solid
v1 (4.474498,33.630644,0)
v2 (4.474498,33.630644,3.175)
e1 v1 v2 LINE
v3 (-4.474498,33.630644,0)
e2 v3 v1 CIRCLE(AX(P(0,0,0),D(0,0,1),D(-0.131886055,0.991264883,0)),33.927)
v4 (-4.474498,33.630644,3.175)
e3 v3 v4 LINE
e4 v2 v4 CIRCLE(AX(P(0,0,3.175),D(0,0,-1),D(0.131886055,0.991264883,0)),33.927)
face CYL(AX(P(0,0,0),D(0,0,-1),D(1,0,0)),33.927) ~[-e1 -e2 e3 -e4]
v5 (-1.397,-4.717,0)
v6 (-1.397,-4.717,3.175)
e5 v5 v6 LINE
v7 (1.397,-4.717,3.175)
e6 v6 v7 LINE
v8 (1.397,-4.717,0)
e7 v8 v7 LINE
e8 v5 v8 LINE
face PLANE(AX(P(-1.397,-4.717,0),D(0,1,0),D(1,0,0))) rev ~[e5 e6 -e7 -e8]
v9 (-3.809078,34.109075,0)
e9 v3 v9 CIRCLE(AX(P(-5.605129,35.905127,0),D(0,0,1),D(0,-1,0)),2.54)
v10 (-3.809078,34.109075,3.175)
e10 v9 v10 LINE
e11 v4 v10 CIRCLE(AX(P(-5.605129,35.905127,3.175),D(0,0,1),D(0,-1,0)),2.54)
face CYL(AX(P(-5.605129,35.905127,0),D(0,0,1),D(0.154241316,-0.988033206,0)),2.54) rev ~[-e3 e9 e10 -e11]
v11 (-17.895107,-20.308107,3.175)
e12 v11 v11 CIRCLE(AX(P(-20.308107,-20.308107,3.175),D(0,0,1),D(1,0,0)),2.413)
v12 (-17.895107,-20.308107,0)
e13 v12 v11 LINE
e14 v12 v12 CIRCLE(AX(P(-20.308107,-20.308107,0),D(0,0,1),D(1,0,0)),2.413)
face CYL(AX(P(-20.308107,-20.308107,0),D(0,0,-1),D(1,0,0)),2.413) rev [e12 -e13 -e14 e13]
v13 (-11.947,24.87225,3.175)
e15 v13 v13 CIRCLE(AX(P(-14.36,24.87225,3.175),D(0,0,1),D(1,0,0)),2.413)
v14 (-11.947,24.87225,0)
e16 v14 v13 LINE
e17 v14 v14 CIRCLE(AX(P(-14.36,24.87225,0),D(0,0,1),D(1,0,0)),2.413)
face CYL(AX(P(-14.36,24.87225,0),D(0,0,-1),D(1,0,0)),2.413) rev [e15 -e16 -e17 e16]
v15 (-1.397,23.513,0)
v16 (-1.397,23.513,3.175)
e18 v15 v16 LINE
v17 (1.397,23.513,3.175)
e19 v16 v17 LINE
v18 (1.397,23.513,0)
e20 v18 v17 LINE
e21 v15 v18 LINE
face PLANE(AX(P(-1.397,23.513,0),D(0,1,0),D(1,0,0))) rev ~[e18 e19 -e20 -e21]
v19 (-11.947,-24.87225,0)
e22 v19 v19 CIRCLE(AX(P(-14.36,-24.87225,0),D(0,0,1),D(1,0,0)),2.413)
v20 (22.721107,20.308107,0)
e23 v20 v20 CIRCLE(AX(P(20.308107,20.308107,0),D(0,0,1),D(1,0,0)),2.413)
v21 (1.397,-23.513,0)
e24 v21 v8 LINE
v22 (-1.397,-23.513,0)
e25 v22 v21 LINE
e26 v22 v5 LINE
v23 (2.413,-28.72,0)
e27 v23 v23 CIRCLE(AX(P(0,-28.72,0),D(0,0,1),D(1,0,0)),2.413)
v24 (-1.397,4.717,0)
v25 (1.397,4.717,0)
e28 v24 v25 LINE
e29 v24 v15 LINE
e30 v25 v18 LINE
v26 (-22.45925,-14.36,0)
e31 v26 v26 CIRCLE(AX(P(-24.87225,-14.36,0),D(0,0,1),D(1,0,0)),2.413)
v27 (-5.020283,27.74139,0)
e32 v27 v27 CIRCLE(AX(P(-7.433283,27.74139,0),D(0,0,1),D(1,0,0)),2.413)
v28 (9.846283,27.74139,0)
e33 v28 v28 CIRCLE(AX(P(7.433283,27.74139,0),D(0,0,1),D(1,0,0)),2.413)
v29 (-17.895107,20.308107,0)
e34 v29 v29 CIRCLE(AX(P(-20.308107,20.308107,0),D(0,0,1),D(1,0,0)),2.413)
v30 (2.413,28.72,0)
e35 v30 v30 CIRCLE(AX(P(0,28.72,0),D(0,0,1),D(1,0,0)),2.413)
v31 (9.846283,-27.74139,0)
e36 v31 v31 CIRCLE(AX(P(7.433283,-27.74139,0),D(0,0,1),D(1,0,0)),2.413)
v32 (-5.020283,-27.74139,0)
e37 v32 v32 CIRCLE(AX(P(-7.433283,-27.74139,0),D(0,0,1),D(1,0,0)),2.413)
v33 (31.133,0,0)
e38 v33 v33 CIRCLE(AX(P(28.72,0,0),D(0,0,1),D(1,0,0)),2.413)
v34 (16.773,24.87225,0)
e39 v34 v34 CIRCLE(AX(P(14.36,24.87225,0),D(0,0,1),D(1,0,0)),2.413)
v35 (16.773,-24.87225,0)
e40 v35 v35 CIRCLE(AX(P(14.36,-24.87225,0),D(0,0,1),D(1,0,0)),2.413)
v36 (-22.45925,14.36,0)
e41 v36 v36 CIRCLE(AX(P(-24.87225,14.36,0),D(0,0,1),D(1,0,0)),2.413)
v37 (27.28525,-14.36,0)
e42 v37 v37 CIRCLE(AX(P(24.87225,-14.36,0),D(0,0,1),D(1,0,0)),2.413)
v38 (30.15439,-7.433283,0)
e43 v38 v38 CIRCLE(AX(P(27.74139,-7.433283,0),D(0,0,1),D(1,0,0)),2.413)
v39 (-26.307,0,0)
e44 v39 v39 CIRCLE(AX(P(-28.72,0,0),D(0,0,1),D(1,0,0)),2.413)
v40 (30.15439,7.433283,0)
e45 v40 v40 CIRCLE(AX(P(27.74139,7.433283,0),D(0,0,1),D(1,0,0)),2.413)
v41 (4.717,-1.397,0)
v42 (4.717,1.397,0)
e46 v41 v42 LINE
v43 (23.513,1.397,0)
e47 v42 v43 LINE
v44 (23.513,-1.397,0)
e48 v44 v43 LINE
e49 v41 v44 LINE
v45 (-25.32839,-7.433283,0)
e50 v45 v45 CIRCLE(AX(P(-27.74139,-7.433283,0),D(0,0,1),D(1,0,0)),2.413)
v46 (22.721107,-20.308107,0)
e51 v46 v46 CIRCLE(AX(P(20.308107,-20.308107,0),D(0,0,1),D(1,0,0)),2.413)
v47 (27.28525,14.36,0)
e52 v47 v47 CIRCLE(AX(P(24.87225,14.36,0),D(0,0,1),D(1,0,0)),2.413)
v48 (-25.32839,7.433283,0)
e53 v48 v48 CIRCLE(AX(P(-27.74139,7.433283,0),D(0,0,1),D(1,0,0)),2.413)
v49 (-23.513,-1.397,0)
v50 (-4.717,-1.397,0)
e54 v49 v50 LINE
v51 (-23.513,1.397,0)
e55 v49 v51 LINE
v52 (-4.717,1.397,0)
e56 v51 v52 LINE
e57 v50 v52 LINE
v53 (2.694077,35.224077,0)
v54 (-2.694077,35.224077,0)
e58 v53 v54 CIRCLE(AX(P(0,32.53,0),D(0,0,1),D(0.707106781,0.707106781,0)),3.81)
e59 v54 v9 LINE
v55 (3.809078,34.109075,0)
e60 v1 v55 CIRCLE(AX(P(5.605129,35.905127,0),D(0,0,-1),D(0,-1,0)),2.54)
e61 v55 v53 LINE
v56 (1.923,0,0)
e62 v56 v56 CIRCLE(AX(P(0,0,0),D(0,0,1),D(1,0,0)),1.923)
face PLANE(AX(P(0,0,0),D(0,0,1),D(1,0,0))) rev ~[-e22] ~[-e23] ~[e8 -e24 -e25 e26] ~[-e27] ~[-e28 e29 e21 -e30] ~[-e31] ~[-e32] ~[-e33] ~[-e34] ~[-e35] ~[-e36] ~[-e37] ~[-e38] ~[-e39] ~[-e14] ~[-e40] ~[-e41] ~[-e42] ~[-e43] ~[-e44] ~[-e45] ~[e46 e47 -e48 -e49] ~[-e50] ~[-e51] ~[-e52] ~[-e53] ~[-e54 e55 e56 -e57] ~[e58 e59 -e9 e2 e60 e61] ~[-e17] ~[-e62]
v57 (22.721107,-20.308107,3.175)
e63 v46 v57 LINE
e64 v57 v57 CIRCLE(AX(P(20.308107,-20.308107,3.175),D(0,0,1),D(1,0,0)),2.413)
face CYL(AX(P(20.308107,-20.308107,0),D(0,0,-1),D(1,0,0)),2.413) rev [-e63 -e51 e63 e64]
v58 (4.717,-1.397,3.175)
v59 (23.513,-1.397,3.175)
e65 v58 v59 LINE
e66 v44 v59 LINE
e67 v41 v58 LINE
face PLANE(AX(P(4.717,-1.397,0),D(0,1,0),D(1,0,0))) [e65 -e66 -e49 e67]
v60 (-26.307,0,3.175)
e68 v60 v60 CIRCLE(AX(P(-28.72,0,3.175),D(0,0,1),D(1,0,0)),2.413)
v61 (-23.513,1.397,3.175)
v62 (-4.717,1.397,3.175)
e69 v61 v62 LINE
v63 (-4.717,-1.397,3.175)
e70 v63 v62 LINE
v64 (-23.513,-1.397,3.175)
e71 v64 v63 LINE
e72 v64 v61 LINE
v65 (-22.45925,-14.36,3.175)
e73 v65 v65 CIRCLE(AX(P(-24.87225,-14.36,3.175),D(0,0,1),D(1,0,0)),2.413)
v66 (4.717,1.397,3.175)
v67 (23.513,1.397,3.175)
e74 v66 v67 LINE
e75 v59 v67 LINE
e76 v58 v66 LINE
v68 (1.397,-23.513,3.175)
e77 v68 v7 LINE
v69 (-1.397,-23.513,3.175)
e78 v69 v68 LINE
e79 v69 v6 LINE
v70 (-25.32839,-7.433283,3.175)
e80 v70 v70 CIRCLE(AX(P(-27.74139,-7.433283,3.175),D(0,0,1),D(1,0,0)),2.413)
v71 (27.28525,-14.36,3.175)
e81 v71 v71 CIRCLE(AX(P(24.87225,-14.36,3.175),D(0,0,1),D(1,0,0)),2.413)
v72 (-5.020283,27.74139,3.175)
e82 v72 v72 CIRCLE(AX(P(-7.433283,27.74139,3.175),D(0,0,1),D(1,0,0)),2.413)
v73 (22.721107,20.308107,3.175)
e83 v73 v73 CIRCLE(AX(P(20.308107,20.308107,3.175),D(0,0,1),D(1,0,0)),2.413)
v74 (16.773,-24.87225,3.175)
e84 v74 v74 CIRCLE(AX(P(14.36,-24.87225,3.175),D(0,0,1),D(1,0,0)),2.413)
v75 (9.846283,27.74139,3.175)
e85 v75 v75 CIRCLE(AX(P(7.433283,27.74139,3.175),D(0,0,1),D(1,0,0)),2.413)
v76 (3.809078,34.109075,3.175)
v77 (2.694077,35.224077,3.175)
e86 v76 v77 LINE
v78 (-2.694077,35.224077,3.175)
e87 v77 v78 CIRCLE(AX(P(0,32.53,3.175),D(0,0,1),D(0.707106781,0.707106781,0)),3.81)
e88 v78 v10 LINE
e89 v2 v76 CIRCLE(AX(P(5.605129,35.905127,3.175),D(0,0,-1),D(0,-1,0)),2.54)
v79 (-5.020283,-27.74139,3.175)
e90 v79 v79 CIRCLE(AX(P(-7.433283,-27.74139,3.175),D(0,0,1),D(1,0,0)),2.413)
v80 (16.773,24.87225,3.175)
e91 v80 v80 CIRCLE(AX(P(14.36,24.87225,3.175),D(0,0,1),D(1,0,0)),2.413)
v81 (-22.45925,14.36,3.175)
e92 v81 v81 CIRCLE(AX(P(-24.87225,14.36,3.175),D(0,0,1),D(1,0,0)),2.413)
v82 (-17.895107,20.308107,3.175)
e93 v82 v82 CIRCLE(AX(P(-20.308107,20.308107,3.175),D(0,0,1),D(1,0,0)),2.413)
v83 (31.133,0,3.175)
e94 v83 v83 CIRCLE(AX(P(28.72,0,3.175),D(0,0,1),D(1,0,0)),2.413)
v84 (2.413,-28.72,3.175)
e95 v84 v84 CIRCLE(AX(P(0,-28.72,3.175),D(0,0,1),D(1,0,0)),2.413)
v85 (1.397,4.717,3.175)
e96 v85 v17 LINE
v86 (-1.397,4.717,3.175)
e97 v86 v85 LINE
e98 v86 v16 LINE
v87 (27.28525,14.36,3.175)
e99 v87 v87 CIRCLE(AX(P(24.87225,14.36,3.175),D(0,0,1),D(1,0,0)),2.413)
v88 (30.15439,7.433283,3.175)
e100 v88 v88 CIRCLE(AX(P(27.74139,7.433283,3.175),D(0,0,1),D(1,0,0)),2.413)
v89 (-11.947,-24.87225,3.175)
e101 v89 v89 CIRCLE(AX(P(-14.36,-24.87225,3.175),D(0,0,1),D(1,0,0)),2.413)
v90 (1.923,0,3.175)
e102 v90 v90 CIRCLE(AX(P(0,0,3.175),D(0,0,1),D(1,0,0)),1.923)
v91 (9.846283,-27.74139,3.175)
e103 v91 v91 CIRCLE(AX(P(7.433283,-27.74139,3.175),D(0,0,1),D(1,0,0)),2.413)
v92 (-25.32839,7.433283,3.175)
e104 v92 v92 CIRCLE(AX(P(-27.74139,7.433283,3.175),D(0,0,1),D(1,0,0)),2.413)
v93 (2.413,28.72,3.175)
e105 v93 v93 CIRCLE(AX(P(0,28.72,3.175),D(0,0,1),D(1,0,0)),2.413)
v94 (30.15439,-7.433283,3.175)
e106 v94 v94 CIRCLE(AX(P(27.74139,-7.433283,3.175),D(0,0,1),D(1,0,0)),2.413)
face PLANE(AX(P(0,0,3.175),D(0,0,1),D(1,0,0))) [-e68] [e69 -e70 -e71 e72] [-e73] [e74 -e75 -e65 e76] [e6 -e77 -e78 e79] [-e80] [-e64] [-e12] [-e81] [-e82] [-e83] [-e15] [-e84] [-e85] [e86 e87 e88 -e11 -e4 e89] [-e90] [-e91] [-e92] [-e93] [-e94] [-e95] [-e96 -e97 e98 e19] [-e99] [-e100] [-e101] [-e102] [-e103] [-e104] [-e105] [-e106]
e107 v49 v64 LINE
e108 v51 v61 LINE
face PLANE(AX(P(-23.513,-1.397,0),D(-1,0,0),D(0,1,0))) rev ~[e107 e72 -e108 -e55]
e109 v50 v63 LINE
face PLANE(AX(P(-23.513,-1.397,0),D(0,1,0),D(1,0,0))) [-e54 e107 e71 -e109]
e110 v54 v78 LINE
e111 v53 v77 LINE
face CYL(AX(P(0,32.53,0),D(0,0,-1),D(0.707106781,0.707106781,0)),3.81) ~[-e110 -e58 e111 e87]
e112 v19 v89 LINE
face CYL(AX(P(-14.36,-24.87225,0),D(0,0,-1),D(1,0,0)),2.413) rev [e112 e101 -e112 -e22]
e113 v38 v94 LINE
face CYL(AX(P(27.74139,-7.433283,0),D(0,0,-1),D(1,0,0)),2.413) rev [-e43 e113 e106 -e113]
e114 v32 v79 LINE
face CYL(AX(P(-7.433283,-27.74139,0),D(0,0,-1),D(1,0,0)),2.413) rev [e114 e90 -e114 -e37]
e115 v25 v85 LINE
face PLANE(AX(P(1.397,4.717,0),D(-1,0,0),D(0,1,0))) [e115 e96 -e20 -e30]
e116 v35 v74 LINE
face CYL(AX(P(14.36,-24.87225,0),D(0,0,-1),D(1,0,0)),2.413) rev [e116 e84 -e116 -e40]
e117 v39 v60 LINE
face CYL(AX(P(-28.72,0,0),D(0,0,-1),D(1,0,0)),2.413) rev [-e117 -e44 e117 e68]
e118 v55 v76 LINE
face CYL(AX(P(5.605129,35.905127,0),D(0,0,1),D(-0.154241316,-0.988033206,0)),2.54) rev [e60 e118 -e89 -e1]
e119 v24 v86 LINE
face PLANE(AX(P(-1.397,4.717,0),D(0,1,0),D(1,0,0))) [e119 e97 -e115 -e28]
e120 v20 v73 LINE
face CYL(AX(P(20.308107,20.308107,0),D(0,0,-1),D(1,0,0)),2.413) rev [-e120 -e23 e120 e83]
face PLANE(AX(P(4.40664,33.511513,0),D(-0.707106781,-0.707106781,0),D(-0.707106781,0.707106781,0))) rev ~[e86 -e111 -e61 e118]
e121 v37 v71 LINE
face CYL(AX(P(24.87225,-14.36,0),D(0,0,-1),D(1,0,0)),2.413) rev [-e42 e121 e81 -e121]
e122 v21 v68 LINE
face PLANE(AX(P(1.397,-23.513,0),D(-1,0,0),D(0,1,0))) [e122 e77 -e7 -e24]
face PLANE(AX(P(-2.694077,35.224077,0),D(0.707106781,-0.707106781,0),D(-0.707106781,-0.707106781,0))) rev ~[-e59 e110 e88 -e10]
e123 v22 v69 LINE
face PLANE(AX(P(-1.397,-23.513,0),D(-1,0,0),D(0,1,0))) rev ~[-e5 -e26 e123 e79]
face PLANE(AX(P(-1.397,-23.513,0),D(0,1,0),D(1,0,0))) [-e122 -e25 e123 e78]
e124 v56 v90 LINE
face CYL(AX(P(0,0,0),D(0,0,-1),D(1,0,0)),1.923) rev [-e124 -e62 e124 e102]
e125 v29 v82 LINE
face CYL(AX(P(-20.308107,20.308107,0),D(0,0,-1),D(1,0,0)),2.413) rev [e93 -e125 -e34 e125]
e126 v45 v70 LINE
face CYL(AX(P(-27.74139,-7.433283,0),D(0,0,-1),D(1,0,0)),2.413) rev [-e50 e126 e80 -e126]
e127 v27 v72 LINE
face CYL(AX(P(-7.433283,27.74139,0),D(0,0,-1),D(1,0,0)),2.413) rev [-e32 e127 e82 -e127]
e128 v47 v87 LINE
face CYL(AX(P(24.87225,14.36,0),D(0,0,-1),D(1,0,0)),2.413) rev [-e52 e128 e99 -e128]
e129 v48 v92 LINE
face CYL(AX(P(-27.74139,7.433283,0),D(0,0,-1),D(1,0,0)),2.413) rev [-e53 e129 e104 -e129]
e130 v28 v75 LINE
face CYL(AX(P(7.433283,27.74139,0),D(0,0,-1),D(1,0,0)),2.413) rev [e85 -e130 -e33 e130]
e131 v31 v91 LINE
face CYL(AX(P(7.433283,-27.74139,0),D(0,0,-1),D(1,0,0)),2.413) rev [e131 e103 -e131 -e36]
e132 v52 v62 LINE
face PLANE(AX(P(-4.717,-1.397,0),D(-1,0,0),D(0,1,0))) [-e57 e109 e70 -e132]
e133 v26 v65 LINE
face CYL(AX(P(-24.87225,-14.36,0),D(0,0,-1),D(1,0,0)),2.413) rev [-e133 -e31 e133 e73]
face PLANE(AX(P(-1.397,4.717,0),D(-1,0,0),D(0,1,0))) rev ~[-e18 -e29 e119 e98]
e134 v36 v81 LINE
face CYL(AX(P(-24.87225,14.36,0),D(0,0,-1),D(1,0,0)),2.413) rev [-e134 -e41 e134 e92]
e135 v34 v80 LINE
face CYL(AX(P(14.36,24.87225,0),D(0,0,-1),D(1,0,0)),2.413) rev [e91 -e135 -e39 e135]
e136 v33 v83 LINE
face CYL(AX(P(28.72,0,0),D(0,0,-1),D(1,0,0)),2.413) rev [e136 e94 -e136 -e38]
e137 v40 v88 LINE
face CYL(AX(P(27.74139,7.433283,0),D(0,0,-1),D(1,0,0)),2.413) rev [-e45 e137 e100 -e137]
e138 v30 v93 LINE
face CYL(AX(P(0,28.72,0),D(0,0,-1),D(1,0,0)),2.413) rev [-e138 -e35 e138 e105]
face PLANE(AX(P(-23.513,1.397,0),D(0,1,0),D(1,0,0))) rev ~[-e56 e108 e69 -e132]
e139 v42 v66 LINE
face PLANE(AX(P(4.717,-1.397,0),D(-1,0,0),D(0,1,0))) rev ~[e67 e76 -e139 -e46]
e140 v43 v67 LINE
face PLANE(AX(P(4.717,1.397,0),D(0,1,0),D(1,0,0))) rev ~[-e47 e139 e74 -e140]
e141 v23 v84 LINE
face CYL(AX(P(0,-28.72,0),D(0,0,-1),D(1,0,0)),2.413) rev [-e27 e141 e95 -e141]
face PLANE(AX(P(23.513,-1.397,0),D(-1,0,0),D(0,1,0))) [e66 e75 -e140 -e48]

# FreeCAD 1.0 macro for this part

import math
import FreeCAD as App
import Part
import Sketcher

V = App.Vector
Q = App.Units.Quantity


def edges_at(feature, points):
    """Names of the edges that pass closest to the given points."""
    edges = feature.Shape.Edges
    near = lambda p: min(range(len(edges)), key=lambda i: edges[i].distToShape(Part.Vertex(*p))[0])
    return sorted({f"Edge{near(p) + 1}" for p in points})

doc = App.newDocument("Part")
body = doc.addObject("PartDesign::Body", "Body")

sketch1 = body.newObject("Sketcher::SketchObject", "Sketch")
sketch1.AttachmentSupport = (doc.getObject("XY_Plane"), [""])
sketch1.MapMode = "FlatFace"
sketch1.addGeometry(Part.Circle(V(0, 0, 0), V(0, 0, 1), 33.8), False)
sketch1.addGeometry(Part.Circle(V(-20.308107, -20.308107, 0), V(0, 0, 1), 2.54), False)
sketch1.addGeometry(Part.Circle(V(-14.36, -24.87225, 0), V(0, 0, 1), 2.54), False)
sketch1.addGeometry(Part.Circle(V(-7.433283, -27.74139, 0), V(0, 0, 1), 2.54), False)
sketch1.addGeometry(Part.Circle(V(0, -28.72, 0), V(0, 0, 1), 2.54), False)
sketch1.addGeometry(Part.Circle(V(-24.87225, -14.36, 0), V(0, 0, 1), 2.54), False)
sketch1.addGeometry(Part.Circle(V(-27.74139, -7.433283, 0), V(0, 0, 1), 2.54), False)
sketch1.addGeometry(Part.Circle(V(-28.72, 0, 0), V(0, 0, 1), 2.54), False)
sketch1.addGeometry(Part.LineSegment(V(1.524, -23.64, 0), V(-1.524, -23.64, 0)), False)
sketch1.addGeometry(Part.LineSegment(V(-1.524, -23.64, 0), V(-1.524, -4.59, 0)), False)
sketch1.addGeometry(Part.LineSegment(V(-1.524, -4.59, 0), V(1.524, -4.59, 0)), False)
sketch1.addGeometry(Part.LineSegment(V(1.524, -4.59, 0), V(1.524, -23.64, 0)), False)
sketch1.addGeometry(Part.LineSegment(V(-4.59, -1.524, 0), V(-23.64, -1.524, 0)), False)
sketch1.addGeometry(Part.LineSegment(V(-23.64, -1.524, 0), V(-23.64, 1.524, 0)), False)
sketch1.addGeometry(Part.LineSegment(V(-23.64, 1.524, 0), V(-4.59, 1.524, 0)), False)
sketch1.addGeometry(Part.LineSegment(V(-4.59, 1.524, 0), V(-4.59, -1.524, 0)), False)
sketch1.addGeometry(Part.Circle(V(0, 0, 0), V(0, 0, 1), 2.05), False)
sketch1.addGeometry(Part.Circle(V(7.433283, -27.74139, 0), V(0, 0, 1), 2.54), False)
sketch1.addGeometry(Part.Circle(V(14.36, -24.87225, 0), V(0, 0, 1), 2.54), False)
sketch1.addGeometry(Part.Circle(V(20.308107, -20.308107, 0), V(0, 0, 1), 2.54), False)
sketch1.addGeometry(Part.LineSegment(V(23.64, -1.524, 0), V(4.59, -1.524, 0)), False)
sketch1.addGeometry(Part.LineSegment(V(4.59, -1.524, 0), V(4.59, 1.524, 0)), False)
sketch1.addGeometry(Part.LineSegment(V(4.59, 1.524, 0), V(23.64, 1.524, 0)), False)
sketch1.addGeometry(Part.LineSegment(V(23.64, 1.524, 0), V(23.64, -1.524, 0)), False)
sketch1.addGeometry(Part.Circle(V(24.87225, -14.36, 0), V(0, 0, 1), 2.54), False)
sketch1.addGeometry(Part.Circle(V(27.74139, -7.433283, 0), V(0, 0, 1), 2.54), False)
sketch1.addGeometry(Part.Circle(V(28.72, 0, 0), V(0, 0, 1), 2.54), False)
sketch1.addGeometry(Part.Circle(V(-27.74139, 7.433283, 0), V(0, 0, 1), 2.54), False)
sketch1.addGeometry(Part.Circle(V(-24.87225, 14.36, 0), V(0, 0, 1), 2.54), False)
sketch1.addGeometry(Part.LineSegment(V(1.524, 4.59, 0), V(-1.524, 4.59, 0)), False)
sketch1.addGeometry(Part.LineSegment(V(-1.524, 4.59, 0), V(-1.524, 23.64, 0)), False)
sketch1.addGeometry(Part.LineSegment(V(-1.524, 23.64, 0), V(1.524, 23.64, 0)), False)
sketch1.addGeometry(Part.LineSegment(V(1.524, 23.64, 0), V(1.524, 4.59, 0)), False)
sketch1.addGeometry(Part.Circle(V(-20.308107, 20.308107, 0), V(0, 0, 1), 2.54), False)
sketch1.addGeometry(Part.Circle(V(-14.36, 24.87225, 0), V(0, 0, 1), 2.54), False)
sketch1.addGeometry(Part.Circle(V(-7.433283, 27.74139, 0), V(0, 0, 1), 2.54), False)
sketch1.addGeometry(Part.Circle(V(0, 28.72, 0), V(0, 0, 1), 2.54), False)
sketch1.addGeometry(Part.Circle(V(27.74139, 7.433283, 0), V(0, 0, 1), 2.54), False)
sketch1.addGeometry(Part.Circle(V(24.87225, 14.36, 0), V(0, 0, 1), 2.54), False)
sketch1.addGeometry(Part.Circle(V(7.433283, 27.74139, 0), V(0, 0, 1), 2.54), False)
sketch1.addGeometry(Part.Circle(V(14.36, 24.87225, 0), V(0, 0, 1), 2.54), False)
sketch1.addGeometry(Part.Circle(V(20.308107, 20.308107, 0), V(0, 0, 1), 2.54), False)
sketch1.addConstraint(Sketcher.Constraint("Coincident", 8, 2, 9, 1))
sketch1.addConstraint(Sketcher.Constraint("Coincident", 9, 2, 10, 1))
sketch1.addConstraint(Sketcher.Constraint("Coincident", 10, 2, 11, 1))
sketch1.addConstraint(Sketcher.Constraint("Coincident", 11, 2, 8, 1))
sketch1.addConstraint(Sketcher.Constraint("Coincident", 12, 2, 13, 1))
sketch1.addConstraint(Sketcher.Constraint("Coincident", 13, 2, 14, 1))
sketch1.addConstraint(Sketcher.Constraint("Coincident", 14, 2, 15, 1))
sketch1.addConstraint(Sketcher.Constraint("Coincident", 15, 2, 12, 1))
sketch1.addConstraint(Sketcher.Constraint("Coincident", 20, 2, 21, 1))
sketch1.addConstraint(Sketcher.Constraint("Coincident", 21, 2, 22, 1))
sketch1.addConstraint(Sketcher.Constraint("Coincident", 22, 2, 23, 1))
sketch1.addConstraint(Sketcher.Constraint("Coincident", 23, 2, 20, 1))
sketch1.addConstraint(Sketcher.Constraint("Coincident", 29, 2, 30, 1))
sketch1.addConstraint(Sketcher.Constraint("Coincident", 30, 2, 31, 1))
sketch1.addConstraint(Sketcher.Constraint("Coincident", 31, 2, 32, 1))
sketch1.addConstraint(Sketcher.Constraint("Coincident", 32, 2, 29, 1))
sketch1.addConstraint(Sketcher.Constraint("Horizontal", 8))
sketch1.addConstraint(Sketcher.Constraint("Vertical", 9))
sketch1.addConstraint(Sketcher.Constraint("Horizontal", 10))
sketch1.addConstraint(Sketcher.Constraint("Vertical", 11))
sketch1.addConstraint(Sketcher.Constraint("Horizontal", 12))
sketch1.addConstraint(Sketcher.Constraint("Vertical", 13))
sketch1.addConstraint(Sketcher.Constraint("Horizontal", 14))
sketch1.addConstraint(Sketcher.Constraint("Vertical", 15))
sketch1.addConstraint(Sketcher.Constraint("Horizontal", 20))
sketch1.addConstraint(Sketcher.Constraint("Vertical", 21))
sketch1.addConstraint(Sketcher.Constraint("Horizontal", 22))
sketch1.addConstraint(Sketcher.Constraint("Vertical", 23))
sketch1.addConstraint(Sketcher.Constraint("Horizontal", 29))
sketch1.addConstraint(Sketcher.Constraint("Vertical", 30))
sketch1.addConstraint(Sketcher.Constraint("Horizontal", 31))
sketch1.addConstraint(Sketcher.Constraint("Vertical", 32))
sketch1.addConstraint(Sketcher.Constraint("Coincident", 0, 3, -1, 1))
sketch1.addConstraint(Sketcher.Constraint("Coincident", 16, 3, -1, 1))
sketch1.addConstraint(Sketcher.Constraint("Equal", 1, 2))
sketch1.addConstraint(Sketcher.Constraint("Equal", 2, 3))
sketch1.addConstraint(Sketcher.Constraint("Equal", 3, 4))
sketch1.addConstraint(Sketcher.Constraint("Equal", 4, 5))
sketch1.addConstraint(Sketcher.Constraint("Equal", 5, 6))
sketch1.addConstraint(Sketcher.Constraint("Equal", 6, 7))
sketch1.addConstraint(Sketcher.Constraint("Equal", 7, 17))
sketch1.addConstraint(Sketcher.Constraint("Equal", 17, 18))
sketch1.addConstraint(Sketcher.Constraint("Equal", 18, 19))
sketch1.addConstraint(Sketcher.Constraint("Equal", 19, 24))
sketch1.addConstraint(Sketcher.Constraint("Equal", 24, 25))
sketch1.addConstraint(Sketcher.Constraint("Equal", 25, 26))
sketch1.addConstraint(Sketcher.Constraint("Equal", 26, 27))
sketch1.addConstraint(Sketcher.Constraint("Equal", 27, 28))
sketch1.addConstraint(Sketcher.Constraint("Equal", 28, 33))
sketch1.addConstraint(Sketcher.Constraint("Equal", 33, 34))
sketch1.addConstraint(Sketcher.Constraint("Equal", 34, 35))
sketch1.addConstraint(Sketcher.Constraint("Equal", 35, 36))
sketch1.addConstraint(Sketcher.Constraint("Equal", 36, 37))
sketch1.addConstraint(Sketcher.Constraint("Equal", 37, 38))
sketch1.addConstraint(Sketcher.Constraint("Equal", 38, 39))
sketch1.addConstraint(Sketcher.Constraint("Equal", 39, 40))
sketch1.addConstraint(Sketcher.Constraint("Equal", 40, 41))
sketch1.addConstraint(Sketcher.Constraint("Symmetric", 7, 3, 26, 3, -1, 1))
sketch1.addConstraint(Sketcher.Constraint("Symmetric", 25, 3, 27, 3, -1, 1))
sketch1.addConstraint(Sketcher.Constraint("Symmetric", 24, 3, 28, 3, -1, 1))
sketch1.addConstraint(Sketcher.Constraint("Symmetric", 19, 3, 33, 3, -1, 1))
sketch1.addConstraint(Sketcher.Constraint("Symmetric", 18, 3, 34, 3, -1, 1))
sketch1.addConstraint(Sketcher.Constraint("Symmetric", 17, 3, 35, 3, -1, 1))
sketch1.addConstraint(Sketcher.Constraint("Symmetric", 4, 3, 36, 3, -1, 1))
sketch1.addConstraint(Sketcher.Constraint("Symmetric", 6, 3, 37, 3, -1, 1))
sketch1.addConstraint(Sketcher.Constraint("Symmetric", 5, 3, 38, 3, -1, 1))
sketch1.addConstraint(Sketcher.Constraint("Symmetric", 3, 3, 39, 3, -1, 1))
sketch1.addConstraint(Sketcher.Constraint("Symmetric", 2, 3, 40, 3, -1, 1))
sketch1.addConstraint(Sketcher.Constraint("Symmetric", 1, 3, 41, 3, -1, 1))
sketch1.addConstraint(Sketcher.Constraint("Symmetric", 14, 2, 20, 2, -1, 1))
sketch1.addConstraint(Sketcher.Constraint("Symmetric", 12, 2, 22, 2, -1, 1))
sketch1.addConstraint(Sketcher.Constraint("Symmetric", 10, 2, 29, 2, -1, 1))
sketch1.addConstraint(Sketcher.Constraint("Symmetric", 8, 2, 31, 2, -1, 1))
sketch1.addConstraint(Sketcher.Constraint("Symmetric", 3, 3, 17, 3, -2))
sketch1.addConstraint(Sketcher.Constraint("Symmetric", 2, 3, 18, 3, -2))
sketch1.addConstraint(Sketcher.Constraint("Symmetric", 1, 3, 19, 3, -2))
sketch1.addConstraint(Sketcher.Constraint("Symmetric", 5, 3, 24, 3, -2))
sketch1.addConstraint(Sketcher.Constraint("Symmetric", 6, 3, 25, 3, -2))
sketch1.addConstraint(Sketcher.Constraint("PointOnObject", 4, 3, -2))
sketch1.addConstraint(Sketcher.Constraint("PointOnObject", 7, 3, -1))
sketch1.addConstraint(Sketcher.Constraint("Horizontal", 15, 2, 20, 2))
sketch1.addConstraint(Sketcher.Constraint("Vertical", 9, 2, 29, 2))
sketch1.addConstraint(Sketcher.Constraint("Equal", 22, 9))
sketch1.addConstraint(Sketcher.Constraint("Equal", 31, 13))
sketch1.addConstraint(Sketcher.Constraint("Diameter", 1, Q("0.2 in")))
sketch1.addConstraint(Sketcher.Constraint("DistanceX", 8, 2, 8, 1, Q("0.12 in")))
sketch1.addConstraint(Sketcher.Constraint("DistanceX", 12, 2, 12, 1, Q("0.75 in")))
sketch1.addConstraint(Sketcher.Constraint("DistanceY", 4, 3, 8, 2, Q("0.2 in")))
sketch1.addConstraint(Sketcher.Constraint("DistanceX", 7, 3, 12, 2, Q("0.2 in")))
sketch1.addConstraint(Sketcher.Constraint("Diameter", 0, Q("67.6 mm")))
sketch1.addConstraint(Sketcher.Constraint("Diameter", 16, Q("4.1 mm")))
sketch1.addConstraint(Sketcher.Constraint("DistanceX", 2, 3, -1, 1, Q("14.36 mm")))
sketch1.addConstraint(Sketcher.Constraint("DistanceY", 4, 3, -1, 1, Q("28.72 mm")))
sketch1.addConstraint(Sketcher.Constraint("DistanceY", 5, 3, -1, 1, Q("14.36 mm")))
sketch1.addConstraint(Sketcher.Constraint("DistanceX", 7, 3, -1, 1, Q("28.72 mm")))
sketch1.addConstraint(Sketcher.Constraint("DistanceY", 2, 3, -1, 1, Q("24.87225 mm")))
sketch1.addConstraint(Sketcher.Constraint("DistanceY", 3, 3, -1, 1, Q("27.74139 mm")))
sketch1.addConstraint(Sketcher.Constraint("DistanceX", 5, 3, -1, 1, Q("24.87225 mm")))
sketch1.addConstraint(Sketcher.Constraint("DistanceX", 6, 3, -1, 1, Q("27.74139 mm")))
sketch1.addConstraint(Sketcher.Constraint("DistanceX", 3, 3, 19, 3, Q("27.74139 mm")))
sketch1.addConstraint(Sketcher.Constraint("DistanceY", 6, 3, 33, 3, Q("27.74139 mm")))
sketch1.addConstraint(Sketcher.Constraint("DistanceX", 1, 3, -1, 1, Q("20.308107 mm")))
sketch1.addConstraint(Sketcher.Constraint("DistanceY", 1, 3, -1, 1, Q("20.308107 mm")))
pad1 = body.newObject("PartDesign::Pad", "Pad")
pad1.Profile = sketch1
pad1.Length = Q("0.125 in")

sketch2 = body.newObject("Sketcher::SketchObject", "Sketch001")
sketch2.AttachmentSupport = (doc.getObject("XY_Plane"), [""])
sketch2.MapMode = "FlatFace"
sketch2.addGeometry(Part.LineSegment(V(-2.694077, 35.224077, 0), V(-4.40664, 33.511513, 0)), False)
sketch2.addGeometry(Part.ArcOfCircle(Part.Circle(V(0, 0, 0), V(0, 0, 1), 33.8), math.radians(82.508796), math.radians(97.491204)), False)
sketch2.addGeometry(Part.LineSegment(V(4.40664, 33.511513, 0), V(2.694077, 35.224077, 0)), False)
sketch2.addGeometry(Part.ArcOfCircle(Part.Circle(V(0, 32.53, 0), V(0, 0, 1), 3.81), math.radians(45), math.radians(135)), False)
sketch2.addConstraint(Sketcher.Constraint("Coincident", 0, 2, 1, 2))
sketch2.addConstraint(Sketcher.Constraint("Coincident", 1, 1, 2, 1))
sketch2.addConstraint(Sketcher.Constraint("Tangent", 2, 2, 3, 1))
sketch2.addConstraint(Sketcher.Constraint("Tangent", 3, 2, 0, 1))
sketch2.addConstraint(Sketcher.Constraint("Coincident", 1, 3, -1, 1))
sketch2.addConstraint(Sketcher.Constraint("Symmetric", 2, 2, 3, 2, -2))
sketch2.addConstraint(Sketcher.Constraint("Perpendicular", 0, 2))
sketch2.addConstraint(Sketcher.Constraint("Radius", 3, Q("0.15 in")))
sketch2.addConstraint(Sketcher.Constraint("Radius", 1, Q("33.8 mm")))
sketch2.addConstraint(Sketcher.Constraint("DistanceY", -1, 1, 3, 3, Q("32.53 mm")))
pad2 = body.newObject("PartDesign::Pad", "Pad001")
pad2.Profile = sketch2
pad2.Length = Q("0.125 in")
doc.recompute()

fillet = body.newObject("PartDesign::Fillet", "Fillet")
fillet.Base = (pad2, edges_at(pad2, [(-4.407, 33.512, 1.587), (4.407, 33.512, 1.587)]))
fillet.Radius = Q("0.1 in")

sketch3 = body.newObject("Sketcher::SketchObject", "Sketch002")
sketch3.AttachmentSupport = (doc.getObject("XY_Plane"), [""])
sketch3.MapMode = "FlatFace"
sketch3.addGeometry(Part.Circle(V(0, 0, 0), V(0, 0, 1), 33.927), False)
sketch3.addGeometry(Part.Circle(V(-20.308107, -20.308107, 0), V(0, 0, 1), 2.413), False)
sketch3.addGeometry(Part.Circle(V(-14.36, -24.87225, 0), V(0, 0, 1), 2.413), False)
sketch3.addGeometry(Part.Circle(V(-7.433283, -27.74139, 0), V(0, 0, 1), 2.413), False)
sketch3.addGeometry(Part.Circle(V(0, -28.72, 0), V(0, 0, 1), 2.413), False)
sketch3.addGeometry(Part.Circle(V(-24.87225, -14.36, 0), V(0, 0, 1), 2.413), False)
sketch3.addGeometry(Part.Circle(V(-27.74139, -7.433283, 0), V(0, 0, 1), 2.413), False)
sketch3.addGeometry(Part.Circle(V(-28.72, 0, 0), V(0, 0, 1), 2.413), False)
sketch3.addGeometry(Part.LineSegment(V(1.397, -23.513, 0), V(-1.397, -23.513, 0)), False)
sketch3.addGeometry(Part.LineSegment(V(-1.397, -23.513, 0), V(-1.397, -4.717, 0)), False)
sketch3.addGeometry(Part.LineSegment(V(-1.397, -4.717, 0), V(1.397, -4.717, 0)), False)
sketch3.addGeometry(Part.LineSegment(V(1.397, -4.717, 0), V(1.397, -23.513, 0)), False)
sketch3.addGeometry(Part.LineSegment(V(-4.717, -1.397, 0), V(-23.513, -1.397, 0)), False)
sketch3.addGeometry(Part.LineSegment(V(-23.513, -1.397, 0), V(-23.513, 1.397, 0)), False)
sketch3.addGeometry(Part.LineSegment(V(-23.513, 1.397, 0), V(-4.717, 1.397, 0)), False)
sketch3.addGeometry(Part.LineSegment(V(-4.717, 1.397, 0), V(-4.717, -1.397, 0)), False)
sketch3.addGeometry(Part.Circle(V(0, 0, 0), V(0, 0, 1), 1.923), False)
sketch3.addGeometry(Part.Circle(V(7.433283, -27.74139, 0), V(0, 0, 1), 2.413), False)
sketch3.addGeometry(Part.Circle(V(14.36, -24.87225, 0), V(0, 0, 1), 2.413), False)
sketch3.addGeometry(Part.Circle(V(20.308107, -20.308107, 0), V(0, 0, 1), 2.413), False)
sketch3.addGeometry(Part.LineSegment(V(23.513, -1.397, 0), V(4.717, -1.397, 0)), False)
sketch3.addGeometry(Part.LineSegment(V(4.717, -1.397, 0), V(4.717, 1.397, 0)), False)
sketch3.addGeometry(Part.LineSegment(V(4.717, 1.397, 0), V(23.513, 1.397, 0)), False)
sketch3.addGeometry(Part.LineSegment(V(23.513, 1.397, 0), V(23.513, -1.397, 0)), False)
sketch3.addGeometry(Part.Circle(V(24.87225, -14.36, 0), V(0, 0, 1), 2.413), False)
sketch3.addGeometry(Part.Circle(V(27.74139, -7.433283, 0), V(0, 0, 1), 2.413), False)
sketch3.addGeometry(Part.Circle(V(28.72, 0, 0), V(0, 0, 1), 2.413), False)
sketch3.addGeometry(Part.Circle(V(-27.74139, 7.433283, 0), V(0, 0, 1), 2.413), False)
sketch3.addGeometry(Part.Circle(V(-24.87225, 14.36, 0), V(0, 0, 1), 2.413), False)
sketch3.addGeometry(Part.LineSegment(V(1.397, 4.717, 0), V(-1.397, 4.717, 0)), False)
sketch3.addGeometry(Part.LineSegment(V(-1.397, 4.717, 0), V(-1.397, 23.513, 0)), False)
sketch3.addGeometry(Part.LineSegment(V(-1.397, 23.513, 0), V(1.397, 23.513, 0)), False)
sketch3.addGeometry(Part.LineSegment(V(1.397, 23.513, 0), V(1.397, 4.717, 0)), False)
sketch3.addGeometry(Part.Circle(V(-20.308107, 20.308107, 0), V(0, 0, 1), 2.413), False)
sketch3.addGeometry(Part.Circle(V(-14.36, 24.87225, 0), V(0, 0, 1), 2.413), False)
sketch3.addGeometry(Part.Circle(V(-7.433283, 27.74139, 0), V(0, 0, 1), 2.413), False)
sketch3.addGeometry(Part.Circle(V(0, 28.72, 0), V(0, 0, 1), 2.413), False)
sketch3.addGeometry(Part.Circle(V(27.74139, 7.433283, 0), V(0, 0, 1), 2.413), False)
sketch3.addGeometry(Part.Circle(V(24.87225, 14.36, 0), V(0, 0, 1), 2.413), False)
sketch3.addGeometry(Part.Circle(V(7.433283, 27.74139, 0), V(0, 0, 1), 2.413), False)
sketch3.addGeometry(Part.Circle(V(14.36, 24.87225, 0), V(0, 0, 1), 2.413), False)
sketch3.addGeometry(Part.Circle(V(20.308107, 20.308107, 0), V(0, 0, 1), 2.413), False)
sketch3.addConstraint(Sketcher.Constraint("Coincident", 8, 2, 9, 1))
sketch3.addConstraint(Sketcher.Constraint("Coincident", 9, 2, 10, 1))
sketch3.addConstraint(Sketcher.Constraint("Coincident", 10, 2, 11, 1))
sketch3.addConstraint(Sketcher.Constraint("Coincident", 11, 2, 8, 1))
sketch3.addConstraint(Sketcher.Constraint("Coincident", 12, 2, 13, 1))
sketch3.addConstraint(Sketcher.Constraint("Coincident", 13, 2, 14, 1))
sketch3.addConstraint(Sketcher.Constraint("Coincident", 14, 2, 15, 1))
sketch3.addConstraint(Sketcher.Constraint("Coincident", 15, 2, 12, 1))
sketch3.addConstraint(Sketcher.Constraint("Coincident", 20, 2, 21, 1))
sketch3.addConstraint(Sketcher.Constraint("Coincident", 21, 2, 22, 1))
sketch3.addConstraint(Sketcher.Constraint("Coincident", 22, 2, 23, 1))
sketch3.addConstraint(Sketcher.Constraint("Coincident", 23, 2, 20, 1))
sketch3.addConstraint(Sketcher.Constraint("Coincident", 29, 2, 30, 1))
sketch3.addConstraint(Sketcher.Constraint("Coincident", 30, 2, 31, 1))
sketch3.addConstraint(Sketcher.Constraint("Coincident", 31, 2, 32, 1))
sketch3.addConstraint(Sketcher.Constraint("Coincident", 32, 2, 29, 1))
sketch3.addConstraint(Sketcher.Constraint("Horizontal", 8))
sketch3.addConstraint(Sketcher.Constraint("Vertical", 9))
sketch3.addConstraint(Sketcher.Constraint("Horizontal", 10))
sketch3.addConstraint(Sketcher.Constraint("Vertical", 11))
sketch3.addConstraint(Sketcher.Constraint("Horizontal", 12))
sketch3.addConstraint(Sketcher.Constraint("Vertical", 13))
sketch3.addConstraint(Sketcher.Constraint("Horizontal", 14))
sketch3.addConstraint(Sketcher.Constraint("Vertical", 15))
sketch3.addConstraint(Sketcher.Constraint("Horizontal", 20))
sketch3.addConstraint(Sketcher.Constraint("Vertical", 21))
sketch3.addConstraint(Sketcher.Constraint("Horizontal", 22))
sketch3.addConstraint(Sketcher.Constraint("Vertical", 23))
sketch3.addConstraint(Sketcher.Constraint("Horizontal", 29))
sketch3.addConstraint(Sketcher.Constraint("Vertical", 30))
sketch3.addConstraint(Sketcher.Constraint("Horizontal", 31))
sketch3.addConstraint(Sketcher.Constraint("Vertical", 32))
sketch3.addConstraint(Sketcher.Constraint("Coincident", 0, 3, -1, 1))
sketch3.addConstraint(Sketcher.Constraint("Coincident", 16, 3, -1, 1))
sketch3.addConstraint(Sketcher.Constraint("Equal", 1, 2))
sketch3.addConstraint(Sketcher.Constraint("Equal", 2, 3))
sketch3.addConstraint(Sketcher.Constraint("Equal", 3, 4))
sketch3.addConstraint(Sketcher.Constraint("Equal", 4, 5))
sketch3.addConstraint(Sketcher.Constraint("Equal", 5, 6))
sketch3.addConstraint(Sketcher.Constraint("Equal", 6, 7))
sketch3.addConstraint(Sketcher.Constraint("Equal", 7, 17))
sketch3.addConstraint(Sketcher.Constraint("Equal", 17, 18))
sketch3.addConstraint(Sketcher.Constraint("Equal", 18, 19))
sketch3.addConstraint(Sketcher.Constraint("Equal", 19, 24))
sketch3.addConstraint(Sketcher.Constraint("Equal", 24, 25))
sketch3.addConstraint(Sketcher.Constraint("Equal", 25, 26))
sketch3.addConstraint(Sketcher.Constraint("Equal", 26, 27))
sketch3.addConstraint(Sketcher.Constraint("Equal", 27, 28))
sketch3.addConstraint(Sketcher.Constraint("Equal", 28, 33))
sketch3.addConstraint(Sketcher.Constraint("Equal", 33, 34))
sketch3.addConstraint(Sketcher.Constraint("Equal", 34, 35))
sketch3.addConstraint(Sketcher.Constraint("Equal", 35, 36))
sketch3.addConstraint(Sketcher.Constraint("Equal", 36, 37))
sketch3.addConstraint(Sketcher.Constraint("Equal", 37, 38))
sketch3.addConstraint(Sketcher.Constraint("Equal", 38, 39))
sketch3.addConstraint(Sketcher.Constraint("Equal", 39, 40))
sketch3.addConstraint(Sketcher.Constraint("Equal", 40, 41))
sketch3.addConstraint(Sketcher.Constraint("Symmetric", 7, 3, 26, 3, -1, 1))
sketch3.addConstraint(Sketcher.Constraint("Symmetric", 25, 3, 27, 3, -1, 1))
sketch3.addConstraint(Sketcher.Constraint("Symmetric", 24, 3, 28, 3, -1, 1))
sketch3.addConstraint(Sketcher.Constraint("Symmetric", 19, 3, 33, 3, -1, 1))
sketch3.addConstraint(Sketcher.Constraint("Symmetric", 18, 3, 34, 3, -1, 1))
sketch3.addConstraint(Sketcher.Constraint("Symmetric", 17, 3, 35, 3, -1, 1))
sketch3.addConstraint(Sketcher.Constraint("Symmetric", 4, 3, 36, 3, -1, 1))
sketch3.addConstraint(Sketcher.Constraint("Symmetric", 6, 3, 37, 3, -1, 1))
sketch3.addConstraint(Sketcher.Constraint("Symmetric", 5, 3, 38, 3, -1, 1))
sketch3.addConstraint(Sketcher.Constraint("Symmetric", 3, 3, 39, 3, -1, 1))
sketch3.addConstraint(Sketcher.Constraint("Symmetric", 2, 3, 40, 3, -1, 1))
sketch3.addConstraint(Sketcher.Constraint("Symmetric", 1, 3, 41, 3, -1, 1))
sketch3.addConstraint(Sketcher.Constraint("Symmetric", 14, 2, 20, 2, -1, 1))
sketch3.addConstraint(Sketcher.Constraint("Symmetric", 12, 2, 22, 2, -1, 1))
sketch3.addConstraint(Sketcher.Constraint("Symmetric", 10, 2, 29, 2, -1, 1))
sketch3.addConstraint(Sketcher.Constraint("Symmetric", 8, 2, 31, 2, -1, 1))
sketch3.addConstraint(Sketcher.Constraint("Symmetric", 3, 3, 17, 3, -2))
sketch3.addConstraint(Sketcher.Constraint("Symmetric", 2, 3, 18, 3, -2))
sketch3.addConstraint(Sketcher.Constraint("Symmetric", 1, 3, 19, 3, -2))
sketch3.addConstraint(Sketcher.Constraint("Symmetric", 5, 3, 24, 3, -2))
sketch3.addConstraint(Sketcher.Constraint("Symmetric", 6, 3, 25, 3, -2))
sketch3.addConstraint(Sketcher.Constraint("PointOnObject", 4, 3, -2))
sketch3.addConstraint(Sketcher.Constraint("PointOnObject", 7, 3, -1))
sketch3.addConstraint(Sketcher.Constraint("Horizontal", 15, 2, 20, 2))
sketch3.addConstraint(Sketcher.Constraint("Vertical", 9, 2, 29, 2))
sketch3.addConstraint(Sketcher.Constraint("Equal", 22, 9))
sketch3.addConstraint(Sketcher.Constraint("Equal", 31, 13))
sketch3.addConstraint(Sketcher.Constraint("Diameter", 1, Q("0.19 in")))
sketch3.addConstraint(Sketcher.Constraint("DistanceX", 8, 2, 8, 1, Q("0.11 in")))
sketch3.addConstraint(Sketcher.Constraint("DistanceX", 12, 2, 12, 1, Q("0.74 in")))
sketch3.addConstraint(Sketcher.Constraint("Diameter", 0, Q("67.854 mm")))
sketch3.addConstraint(Sketcher.Constraint("Diameter", 16, Q("3.846 mm")))
sketch3.addConstraint(Sketcher.Constraint("DistanceY", 4, 3, 8, 2, Q("0.205 in")))
sketch3.addConstraint(Sketcher.Constraint("DistanceX", 7, 3, 12, 2, Q("0.205 in")))
sketch3.addConstraint(Sketcher.Constraint("DistanceX", 2, 3, -1, 1, Q("14.36 mm")))
sketch3.addConstraint(Sketcher.Constraint("DistanceY", 4, 3, -1, 1, Q("28.72 mm")))
sketch3.addConstraint(Sketcher.Constraint("DistanceY", 5, 3, -1, 1, Q("14.36 mm")))
sketch3.addConstraint(Sketcher.Constraint("DistanceX", 7, 3, -1, 1, Q("28.72 mm")))
sketch3.addConstraint(Sketcher.Constraint("DistanceY", 2, 3, -1, 1, Q("24.87225 mm")))
sketch3.addConstraint(Sketcher.Constraint("DistanceY", 3, 3, -1, 1, Q("27.74139 mm")))
sketch3.addConstraint(Sketcher.Constraint("DistanceX", 5, 3, -1, 1, Q("24.87225 mm")))
sketch3.addConstraint(Sketcher.Constraint("DistanceX", 6, 3, -1, 1, Q("27.74139 mm")))
sketch3.addConstraint(Sketcher.Constraint("DistanceX", 3, 3, 19, 3, Q("27.74139 mm")))
sketch3.addConstraint(Sketcher.Constraint("DistanceY", 6, 3, 33, 3, Q("27.74139 mm")))
sketch3.addConstraint(Sketcher.Constraint("DistanceX", 1, 3, -1, 1, Q("20.308107 mm")))
sketch3.addConstraint(Sketcher.Constraint("DistanceY", 1, 3, -1, 1, Q("20.308107 mm")))
pad3 = body.newObject("PartDesign::Pad", "Pad002")
pad3.Profile = sketch3
pad3.Length = Q("0.125 in")

doc.recompute()
